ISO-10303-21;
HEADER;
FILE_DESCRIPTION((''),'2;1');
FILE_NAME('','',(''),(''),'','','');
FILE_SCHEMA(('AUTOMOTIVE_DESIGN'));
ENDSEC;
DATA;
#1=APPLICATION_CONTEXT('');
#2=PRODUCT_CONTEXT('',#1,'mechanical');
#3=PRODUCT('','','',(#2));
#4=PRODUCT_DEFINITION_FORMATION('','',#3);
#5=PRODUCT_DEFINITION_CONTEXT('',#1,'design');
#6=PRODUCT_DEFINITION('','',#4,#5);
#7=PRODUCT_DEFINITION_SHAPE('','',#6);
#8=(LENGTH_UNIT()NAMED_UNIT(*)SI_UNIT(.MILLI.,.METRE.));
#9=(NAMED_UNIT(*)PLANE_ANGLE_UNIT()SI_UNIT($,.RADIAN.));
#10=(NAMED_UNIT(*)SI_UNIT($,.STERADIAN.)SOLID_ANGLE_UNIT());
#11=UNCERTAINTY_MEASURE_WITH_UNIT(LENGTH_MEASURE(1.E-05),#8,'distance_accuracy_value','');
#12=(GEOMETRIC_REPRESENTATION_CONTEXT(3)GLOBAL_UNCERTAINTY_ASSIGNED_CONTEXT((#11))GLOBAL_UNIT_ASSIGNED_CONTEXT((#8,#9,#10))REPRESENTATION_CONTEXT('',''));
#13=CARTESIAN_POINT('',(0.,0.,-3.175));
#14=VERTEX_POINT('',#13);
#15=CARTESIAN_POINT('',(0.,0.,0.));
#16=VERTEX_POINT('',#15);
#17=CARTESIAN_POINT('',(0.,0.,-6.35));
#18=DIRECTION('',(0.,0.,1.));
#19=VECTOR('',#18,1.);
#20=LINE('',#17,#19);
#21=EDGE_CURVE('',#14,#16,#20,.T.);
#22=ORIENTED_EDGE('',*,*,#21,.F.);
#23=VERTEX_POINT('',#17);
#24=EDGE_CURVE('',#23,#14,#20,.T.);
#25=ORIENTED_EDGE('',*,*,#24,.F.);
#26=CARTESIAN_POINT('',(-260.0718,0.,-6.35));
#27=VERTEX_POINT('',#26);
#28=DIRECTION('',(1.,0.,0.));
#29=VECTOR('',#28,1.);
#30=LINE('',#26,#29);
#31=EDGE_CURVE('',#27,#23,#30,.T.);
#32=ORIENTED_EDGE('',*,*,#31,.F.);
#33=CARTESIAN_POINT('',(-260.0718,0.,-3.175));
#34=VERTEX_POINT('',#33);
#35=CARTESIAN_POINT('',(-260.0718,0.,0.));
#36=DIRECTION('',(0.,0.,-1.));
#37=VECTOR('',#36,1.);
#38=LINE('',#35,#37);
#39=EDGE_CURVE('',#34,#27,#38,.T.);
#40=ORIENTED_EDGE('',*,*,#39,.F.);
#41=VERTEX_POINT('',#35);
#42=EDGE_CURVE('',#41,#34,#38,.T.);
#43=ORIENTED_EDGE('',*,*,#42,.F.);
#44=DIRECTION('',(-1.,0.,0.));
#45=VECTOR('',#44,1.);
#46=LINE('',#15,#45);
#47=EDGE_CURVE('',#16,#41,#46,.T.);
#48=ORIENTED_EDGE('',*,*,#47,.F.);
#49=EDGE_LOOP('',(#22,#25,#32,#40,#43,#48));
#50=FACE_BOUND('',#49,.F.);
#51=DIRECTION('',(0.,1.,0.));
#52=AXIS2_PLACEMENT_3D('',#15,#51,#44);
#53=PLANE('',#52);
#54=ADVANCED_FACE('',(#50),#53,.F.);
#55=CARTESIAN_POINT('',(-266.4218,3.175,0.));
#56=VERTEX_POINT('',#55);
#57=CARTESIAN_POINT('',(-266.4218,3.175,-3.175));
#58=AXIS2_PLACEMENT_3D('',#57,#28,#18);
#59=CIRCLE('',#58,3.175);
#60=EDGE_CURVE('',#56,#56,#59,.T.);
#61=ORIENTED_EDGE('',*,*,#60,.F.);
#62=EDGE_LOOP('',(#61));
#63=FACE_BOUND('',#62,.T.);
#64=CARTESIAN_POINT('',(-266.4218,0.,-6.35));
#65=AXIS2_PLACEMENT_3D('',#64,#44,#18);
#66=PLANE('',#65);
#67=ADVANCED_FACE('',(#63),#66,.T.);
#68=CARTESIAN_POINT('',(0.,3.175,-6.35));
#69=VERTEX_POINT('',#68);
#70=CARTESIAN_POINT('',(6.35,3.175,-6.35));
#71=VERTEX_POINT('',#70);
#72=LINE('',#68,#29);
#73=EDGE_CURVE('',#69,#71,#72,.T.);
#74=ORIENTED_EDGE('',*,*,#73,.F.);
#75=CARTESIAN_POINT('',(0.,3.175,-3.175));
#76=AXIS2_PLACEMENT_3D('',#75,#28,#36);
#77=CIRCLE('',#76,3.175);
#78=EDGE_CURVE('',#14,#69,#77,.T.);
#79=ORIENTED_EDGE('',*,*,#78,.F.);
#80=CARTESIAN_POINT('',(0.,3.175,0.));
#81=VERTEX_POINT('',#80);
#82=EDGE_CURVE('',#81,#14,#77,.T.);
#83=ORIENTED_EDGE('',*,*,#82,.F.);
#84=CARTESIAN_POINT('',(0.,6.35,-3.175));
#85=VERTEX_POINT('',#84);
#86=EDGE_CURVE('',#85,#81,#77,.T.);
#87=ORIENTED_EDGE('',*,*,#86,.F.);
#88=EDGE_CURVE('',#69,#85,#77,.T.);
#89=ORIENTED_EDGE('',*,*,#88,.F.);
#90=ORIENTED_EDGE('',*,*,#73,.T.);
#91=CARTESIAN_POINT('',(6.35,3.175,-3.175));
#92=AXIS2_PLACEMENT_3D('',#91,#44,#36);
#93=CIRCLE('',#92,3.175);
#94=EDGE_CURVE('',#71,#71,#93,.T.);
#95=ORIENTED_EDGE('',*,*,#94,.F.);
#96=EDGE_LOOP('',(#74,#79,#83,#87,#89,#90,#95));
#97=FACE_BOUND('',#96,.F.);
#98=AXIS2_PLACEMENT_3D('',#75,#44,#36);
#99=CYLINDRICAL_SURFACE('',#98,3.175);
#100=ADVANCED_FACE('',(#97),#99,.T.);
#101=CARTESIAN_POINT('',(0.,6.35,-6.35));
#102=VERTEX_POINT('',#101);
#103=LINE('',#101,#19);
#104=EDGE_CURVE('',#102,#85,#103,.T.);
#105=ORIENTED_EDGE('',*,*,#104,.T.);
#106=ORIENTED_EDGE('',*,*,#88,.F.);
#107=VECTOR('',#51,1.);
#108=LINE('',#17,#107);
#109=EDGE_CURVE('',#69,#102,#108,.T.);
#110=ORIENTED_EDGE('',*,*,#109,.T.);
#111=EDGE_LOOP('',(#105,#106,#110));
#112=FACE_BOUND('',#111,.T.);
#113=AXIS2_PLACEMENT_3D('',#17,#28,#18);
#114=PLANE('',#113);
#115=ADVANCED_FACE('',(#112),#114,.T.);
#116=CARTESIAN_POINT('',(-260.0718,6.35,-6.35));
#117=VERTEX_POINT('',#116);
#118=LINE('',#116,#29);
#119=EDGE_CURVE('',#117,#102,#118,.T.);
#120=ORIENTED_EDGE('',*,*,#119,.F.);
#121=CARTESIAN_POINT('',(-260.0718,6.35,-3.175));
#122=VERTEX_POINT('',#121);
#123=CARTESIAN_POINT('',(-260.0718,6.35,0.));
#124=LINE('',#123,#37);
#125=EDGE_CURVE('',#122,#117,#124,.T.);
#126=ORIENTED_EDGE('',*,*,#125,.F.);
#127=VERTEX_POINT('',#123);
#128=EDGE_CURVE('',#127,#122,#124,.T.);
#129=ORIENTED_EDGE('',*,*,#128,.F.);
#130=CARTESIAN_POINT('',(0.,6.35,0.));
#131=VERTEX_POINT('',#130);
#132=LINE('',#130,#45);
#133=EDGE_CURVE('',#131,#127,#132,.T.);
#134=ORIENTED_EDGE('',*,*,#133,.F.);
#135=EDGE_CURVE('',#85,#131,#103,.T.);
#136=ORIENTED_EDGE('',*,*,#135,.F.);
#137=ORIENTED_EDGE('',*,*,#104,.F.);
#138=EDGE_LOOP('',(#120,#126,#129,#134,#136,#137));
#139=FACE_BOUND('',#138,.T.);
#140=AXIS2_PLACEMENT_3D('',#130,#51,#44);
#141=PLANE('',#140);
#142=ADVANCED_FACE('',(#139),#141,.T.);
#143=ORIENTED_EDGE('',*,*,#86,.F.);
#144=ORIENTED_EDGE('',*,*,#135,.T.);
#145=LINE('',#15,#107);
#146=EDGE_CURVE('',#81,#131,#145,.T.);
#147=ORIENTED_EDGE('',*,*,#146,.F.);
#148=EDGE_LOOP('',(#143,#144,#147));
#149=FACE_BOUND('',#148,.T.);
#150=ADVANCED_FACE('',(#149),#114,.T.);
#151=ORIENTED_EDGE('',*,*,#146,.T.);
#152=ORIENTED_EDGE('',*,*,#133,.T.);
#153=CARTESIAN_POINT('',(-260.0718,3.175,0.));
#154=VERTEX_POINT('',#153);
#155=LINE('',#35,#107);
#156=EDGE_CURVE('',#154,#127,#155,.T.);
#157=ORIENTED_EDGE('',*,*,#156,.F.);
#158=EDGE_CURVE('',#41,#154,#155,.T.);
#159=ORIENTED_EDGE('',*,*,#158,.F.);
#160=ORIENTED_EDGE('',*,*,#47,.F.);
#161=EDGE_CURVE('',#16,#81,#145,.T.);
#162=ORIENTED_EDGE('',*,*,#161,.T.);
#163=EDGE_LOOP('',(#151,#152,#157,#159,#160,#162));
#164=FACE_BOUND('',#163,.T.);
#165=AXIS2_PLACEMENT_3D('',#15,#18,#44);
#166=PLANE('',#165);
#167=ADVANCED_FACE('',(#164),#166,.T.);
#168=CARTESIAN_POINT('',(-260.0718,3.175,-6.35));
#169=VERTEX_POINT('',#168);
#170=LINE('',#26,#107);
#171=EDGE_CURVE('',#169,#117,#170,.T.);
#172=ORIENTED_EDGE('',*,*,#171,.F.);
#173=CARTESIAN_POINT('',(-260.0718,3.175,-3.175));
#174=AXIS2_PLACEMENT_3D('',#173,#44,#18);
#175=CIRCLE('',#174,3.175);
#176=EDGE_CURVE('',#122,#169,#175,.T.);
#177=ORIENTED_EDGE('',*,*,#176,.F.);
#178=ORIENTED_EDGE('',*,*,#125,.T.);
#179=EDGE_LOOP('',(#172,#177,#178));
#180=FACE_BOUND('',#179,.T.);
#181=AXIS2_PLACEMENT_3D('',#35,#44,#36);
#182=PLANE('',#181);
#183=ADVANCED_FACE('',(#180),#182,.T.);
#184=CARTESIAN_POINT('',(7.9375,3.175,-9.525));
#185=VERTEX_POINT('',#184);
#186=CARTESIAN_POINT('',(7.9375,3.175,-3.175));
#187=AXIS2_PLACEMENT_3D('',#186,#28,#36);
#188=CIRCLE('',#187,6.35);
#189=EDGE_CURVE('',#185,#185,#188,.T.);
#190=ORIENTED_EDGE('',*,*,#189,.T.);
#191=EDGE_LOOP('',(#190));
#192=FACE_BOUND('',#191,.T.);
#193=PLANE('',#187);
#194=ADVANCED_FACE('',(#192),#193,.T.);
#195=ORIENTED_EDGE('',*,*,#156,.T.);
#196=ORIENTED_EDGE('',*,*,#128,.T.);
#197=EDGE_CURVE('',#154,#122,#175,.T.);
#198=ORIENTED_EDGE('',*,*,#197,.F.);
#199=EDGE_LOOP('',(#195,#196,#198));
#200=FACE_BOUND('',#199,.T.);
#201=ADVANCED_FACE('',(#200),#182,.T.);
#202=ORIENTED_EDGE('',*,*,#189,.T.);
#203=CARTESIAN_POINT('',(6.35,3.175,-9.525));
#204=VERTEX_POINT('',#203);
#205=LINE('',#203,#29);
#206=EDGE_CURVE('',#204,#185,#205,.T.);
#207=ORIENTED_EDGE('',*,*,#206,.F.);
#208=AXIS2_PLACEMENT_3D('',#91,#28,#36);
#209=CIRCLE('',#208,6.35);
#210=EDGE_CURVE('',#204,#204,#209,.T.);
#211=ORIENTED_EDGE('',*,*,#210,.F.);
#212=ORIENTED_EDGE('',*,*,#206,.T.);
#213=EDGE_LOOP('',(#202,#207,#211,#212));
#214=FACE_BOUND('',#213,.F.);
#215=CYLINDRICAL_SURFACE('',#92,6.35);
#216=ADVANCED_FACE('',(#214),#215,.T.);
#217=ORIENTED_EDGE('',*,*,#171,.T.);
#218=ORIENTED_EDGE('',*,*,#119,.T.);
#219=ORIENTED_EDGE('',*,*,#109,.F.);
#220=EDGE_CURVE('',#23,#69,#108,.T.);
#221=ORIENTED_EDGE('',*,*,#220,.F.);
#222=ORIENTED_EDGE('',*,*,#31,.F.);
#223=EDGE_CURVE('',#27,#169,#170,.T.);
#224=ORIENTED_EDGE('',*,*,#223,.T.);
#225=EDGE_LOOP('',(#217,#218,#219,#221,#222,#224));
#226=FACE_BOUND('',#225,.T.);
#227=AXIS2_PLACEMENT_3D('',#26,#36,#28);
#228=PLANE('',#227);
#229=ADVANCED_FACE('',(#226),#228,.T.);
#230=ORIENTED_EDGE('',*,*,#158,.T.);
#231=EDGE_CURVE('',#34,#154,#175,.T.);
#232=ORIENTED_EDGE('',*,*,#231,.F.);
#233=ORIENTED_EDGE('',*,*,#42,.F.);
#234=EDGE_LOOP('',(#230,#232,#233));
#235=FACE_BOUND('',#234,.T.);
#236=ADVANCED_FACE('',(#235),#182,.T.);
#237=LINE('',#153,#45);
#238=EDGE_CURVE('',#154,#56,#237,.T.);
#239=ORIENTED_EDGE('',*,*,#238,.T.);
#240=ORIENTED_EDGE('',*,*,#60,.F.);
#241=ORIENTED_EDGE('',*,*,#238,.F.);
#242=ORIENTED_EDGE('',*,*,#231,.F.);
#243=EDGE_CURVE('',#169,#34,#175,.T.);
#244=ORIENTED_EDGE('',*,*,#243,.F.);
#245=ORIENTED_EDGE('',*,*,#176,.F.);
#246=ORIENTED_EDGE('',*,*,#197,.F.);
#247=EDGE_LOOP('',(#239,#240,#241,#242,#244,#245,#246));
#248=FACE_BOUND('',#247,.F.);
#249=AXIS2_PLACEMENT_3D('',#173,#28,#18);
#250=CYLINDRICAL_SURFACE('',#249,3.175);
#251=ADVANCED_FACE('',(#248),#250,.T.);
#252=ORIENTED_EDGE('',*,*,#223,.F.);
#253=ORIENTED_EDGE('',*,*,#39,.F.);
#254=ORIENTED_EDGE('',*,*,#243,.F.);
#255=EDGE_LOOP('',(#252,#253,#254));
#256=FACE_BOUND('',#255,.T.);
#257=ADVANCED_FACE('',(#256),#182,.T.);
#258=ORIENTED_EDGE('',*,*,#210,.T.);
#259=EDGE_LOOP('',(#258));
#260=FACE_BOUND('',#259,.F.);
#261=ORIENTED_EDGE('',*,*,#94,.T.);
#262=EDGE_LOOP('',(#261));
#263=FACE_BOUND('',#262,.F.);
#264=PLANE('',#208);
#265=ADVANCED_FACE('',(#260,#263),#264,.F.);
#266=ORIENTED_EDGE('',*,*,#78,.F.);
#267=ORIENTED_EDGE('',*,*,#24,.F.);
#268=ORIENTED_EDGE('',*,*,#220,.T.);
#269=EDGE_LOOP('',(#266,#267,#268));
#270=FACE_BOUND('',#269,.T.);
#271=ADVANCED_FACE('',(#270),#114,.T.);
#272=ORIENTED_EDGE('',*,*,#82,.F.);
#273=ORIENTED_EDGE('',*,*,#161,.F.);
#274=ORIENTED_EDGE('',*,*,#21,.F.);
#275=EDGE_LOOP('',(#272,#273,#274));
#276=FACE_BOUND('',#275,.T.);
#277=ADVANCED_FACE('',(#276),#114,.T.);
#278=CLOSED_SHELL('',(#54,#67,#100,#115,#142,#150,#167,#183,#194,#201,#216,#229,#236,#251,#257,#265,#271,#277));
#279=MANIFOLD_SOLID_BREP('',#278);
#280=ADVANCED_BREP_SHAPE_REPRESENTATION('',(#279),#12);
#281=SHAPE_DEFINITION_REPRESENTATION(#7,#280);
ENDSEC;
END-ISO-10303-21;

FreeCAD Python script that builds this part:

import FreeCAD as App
import Part
import Sketcher
Q = App.Units.Quantity

doc = App.newDocument("Part")
body = doc.addObject("PartDesign::Body", "Body")

# Sketch on XZ plane
sketch1 = body.newObject("Sketcher::SketchObject", "Sketch")
sketch1.AttachmentSupport = (doc.getObject("XZ_Plane"), [""])
sketch1.MapMode = "FlatFace"
sketch1.addGeometry(Part.LineSegment(App.Vector(-260, 0, 0), App.Vector(0, 0, 0)), False)
sketch1.addGeometry(Part.LineSegment(App.Vector(0, 0, 0), App.Vector(0, -6, 0)), False)
sketch1.addGeometry(Part.LineSegment(App.Vector(0, -6, 0), App.Vector(-260, -6, 0)), False)
sketch1.addGeometry(Part.LineSegment(App.Vector(-260, -6, 0), App.Vector(-260, 0, 0)), False)
sketch1.addConstraint(Sketcher.Constraint("Coincident", 0, 2, 1, 1))
sketch1.addConstraint(Sketcher.Constraint("Coincident", 1, 2, 2, 1))
sketch1.addConstraint(Sketcher.Constraint("Coincident", 2, 2, 3, 1))
sketch1.addConstraint(Sketcher.Constraint("Coincident", 3, 2, 0, 1))
sketch1.addConstraint(Sketcher.Constraint("Horizontal", 0))
sketch1.addConstraint(Sketcher.Constraint("Vertical", 1))
sketch1.addConstraint(Sketcher.Constraint("Horizontal", 2))
sketch1.addConstraint(Sketcher.Constraint("Vertical", 3))
sketch1.addConstraint(Sketcher.Constraint("Coincident", 0, 2, -1, 1))
sketch1.addConstraint(Sketcher.Constraint("DistanceY", 1, 2, 1, 1, Q("0.25 in")))
sketch1.addConstraint(Sketcher.Constraint("DistanceX", 0, 1, 0, 2, Q("260.0718 mm")))
pad1 = body.newObject("PartDesign::Pad", "Pad")
pad1.Profile = sketch1
pad1.Length = Q("0.25 in")
pad1.Reversed = True

# Sketch on YZ plane
sketch2 = body.newObject("Sketcher::SketchObject", "Sketch001")
sketch2.AttachmentSupport = (doc.getObject("YZ_Plane"), [""])
sketch2.MapMode = "FlatFace"
sketch2.AttachmentOffset = App.Placement(App.Vector(0, 0, -260.0718), App.Rotation())
sketch2.addGeometry(Part.Circle(App.Vector(3.2, -3.2, 0), App.Vector(0, 0, 1), 3.2), False)
sketch2.addConstraint(Sketcher.Constraint("Diameter", 0, Q("0.25 in")))
sketch2.addConstraint(Sketcher.Constraint("DistanceX", -1, 1, 0, 3, Q("0.125 in")))
sketch2.addConstraint(Sketcher.Constraint("DistanceY", 0, 3, -1, 1, Q("0.125 in")))
pad2 = body.newObject("PartDesign::Pad", "Pad001")
pad2.Profile = sketch2
pad2.Length = Q("0.25 in")
pad2.Reversed = True

# Sketch on YZ plane
sketch3 = body.newObject("Sketcher::SketchObject", "Sketch002")
sketch3.AttachmentSupport = (doc.getObject("YZ_Plane"), [""])
sketch3.MapMode = "FlatFace"
sketch3.addGeometry(Part.Circle(App.Vector(3.2, -3.2, 0), App.Vector(0, 0, 1), 3.2), False)
sketch3.addConstraint(Sketcher.Constraint("Diameter", 0, Q("0.25 in")))
sketch3.addConstraint(Sketcher.Constraint("DistanceX", -1, 1, 0, 3, Q("0.125 in")))
sketch3.addConstraint(Sketcher.Constraint("DistanceY", 0, 3, -1, 1, Q("0.125 in")))
pad3 = body.newObject("PartDesign::Pad", "Pad002")
pad3.Profile = sketch3
pad3.Length = Q("0.25 in")

# Sketch on YZ plane
sketch4 = body.newObject("Sketcher::SketchObject", "Sketch003")
sketch4.AttachmentSupport = (doc.getObject("YZ_Plane"), [""])
sketch4.MapMode = "FlatFace"
sketch4.AttachmentOffset = App.Placement(App.Vector(0, 0, 0.25 * 25.4), App.Rotation())
sketch4.addGeometry(Part.Circle(App.Vector(3, -3, 0), App.Vector(0, 0, 1), 6), False)
sketch4.addConstraint(Sketcher.Constraint("Diameter", 0, Q("0.5 in")))
sketch4.addConstraint(Sketcher.Constraint("DistanceX", -1, 1, 0, 3, Q("0.125 in")))
sketch4.addConstraint(Sketcher.Constraint("DistanceY", 0, 3, -1, 1, Q("0.125 in")))
pad4 = body.newObject("PartDesign::Pad", "Pad003")
pad4.Profile = sketch4
pad4.Length = Q("0.0625 in")

doc.recompute()
